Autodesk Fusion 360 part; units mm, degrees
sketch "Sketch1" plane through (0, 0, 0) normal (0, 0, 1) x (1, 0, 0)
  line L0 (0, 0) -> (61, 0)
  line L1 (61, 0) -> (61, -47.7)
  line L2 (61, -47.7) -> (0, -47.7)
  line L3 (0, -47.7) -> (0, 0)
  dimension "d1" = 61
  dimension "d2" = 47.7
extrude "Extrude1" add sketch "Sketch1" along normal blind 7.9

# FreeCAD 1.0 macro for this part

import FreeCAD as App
import Part
import Sketcher
from FreeCAD import Vector

doc = App.newDocument("Part")
body = doc.addObject("PartDesign::Body", "Body")

sketch1 = body.newObject("Sketcher::SketchObject", "Sketch")
sketch1.AttachmentSupport = (doc.getObject("XY_Plane"), [""])
sketch1.MapMode = "FlatFace"
sketch1.addGeometry(Part.LineSegment(Vector(61, 0, 0), Vector(0, 0, 0)), False)
sketch1.addGeometry(Part.LineSegment(Vector(0, 0, 0), Vector(0, -48, 0)), False)
sketch1.addGeometry(Part.LineSegment(Vector(0, -48, 0), Vector(61, -48, 0)), False)
sketch1.addGeometry(Part.LineSegment(Vector(61, -48, 0), Vector(61, 0, 0)), False)
sketch1.addConstraint(Sketcher.Constraint("Coincident", 0, 2, 1, 1))
sketch1.addConstraint(Sketcher.Constraint("Coincident", 1, 2, 2, 1))
sketch1.addConstraint(Sketcher.Constraint("Coincident", 2, 2, 3, 1))
sketch1.addConstraint(Sketcher.Constraint("Coincident", 3, 2, 0, 1))
sketch1.addConstraint(Sketcher.Constraint("Horizontal", 0))
sketch1.addConstraint(Sketcher.Constraint("Vertical", 1))
sketch1.addConstraint(Sketcher.Constraint("Horizontal", 2))
sketch1.addConstraint(Sketcher.Constraint("Vertical", 3))
sketch1.addConstraint(Sketcher.Constraint("Coincident", 0, 2, -1, 1))
sketch1.addConstraint(Sketcher.Constraint("DistanceX", 0, 2, 0, 1, 61.0))
sketch1.addConstraint(Sketcher.Constraint("DistanceY", 1, 2, 1, 1, 47.7))
pad1 = body.newObject("PartDesign::Pad", "Pad")
pad1.Profile = sketch1
pad1.Length = 7.9

doc.recompute()
